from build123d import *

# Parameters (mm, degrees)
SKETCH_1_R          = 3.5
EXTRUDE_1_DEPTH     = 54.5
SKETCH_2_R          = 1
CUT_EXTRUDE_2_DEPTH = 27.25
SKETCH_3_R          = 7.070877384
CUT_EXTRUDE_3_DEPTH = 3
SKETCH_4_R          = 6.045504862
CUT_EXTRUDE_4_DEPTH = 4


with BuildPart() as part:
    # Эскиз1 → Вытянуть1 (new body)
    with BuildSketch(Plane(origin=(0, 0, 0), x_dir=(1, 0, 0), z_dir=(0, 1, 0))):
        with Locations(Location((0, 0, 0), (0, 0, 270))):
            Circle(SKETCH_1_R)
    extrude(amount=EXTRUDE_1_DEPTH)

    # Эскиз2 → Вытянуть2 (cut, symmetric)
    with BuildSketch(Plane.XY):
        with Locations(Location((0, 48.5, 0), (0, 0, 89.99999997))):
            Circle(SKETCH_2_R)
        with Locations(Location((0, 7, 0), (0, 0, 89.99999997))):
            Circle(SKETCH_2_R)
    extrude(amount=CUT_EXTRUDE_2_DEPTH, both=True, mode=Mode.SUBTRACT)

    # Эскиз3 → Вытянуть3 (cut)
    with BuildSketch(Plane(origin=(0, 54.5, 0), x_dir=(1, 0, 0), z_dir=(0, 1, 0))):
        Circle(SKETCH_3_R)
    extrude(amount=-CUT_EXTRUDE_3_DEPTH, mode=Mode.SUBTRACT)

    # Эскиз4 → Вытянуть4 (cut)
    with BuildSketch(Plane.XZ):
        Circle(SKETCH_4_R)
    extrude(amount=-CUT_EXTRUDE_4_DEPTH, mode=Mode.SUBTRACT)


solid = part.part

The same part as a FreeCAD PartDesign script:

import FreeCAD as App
import Part
import Sketcher

V = App.Vector

doc = App.newDocument("Part")
body = doc.addObject("PartDesign::Body", "Body")

# Sketch on XZ plane
sketch1 = body.newObject("Sketcher::SketchObject", "Sketch")
sketch1.AttachmentSupport = (doc.getObject("XZ_Plane"), [""])
sketch1.MapMode = "FlatFace"
sketch1.addGeometry(Part.Circle(V(0, 0, 0), V(0, 0, 1), 3.5), False)
sketch1.addConstraint(Sketcher.Constraint("Coincident", 0, 3, -1, 1))
sketch1.addConstraint(Sketcher.Constraint("Diameter", 0, 7.0))
pad1 = body.newObject("PartDesign::Pad", "Pad")
pad1.Profile = sketch1
pad1.Length = 54.5
pad1.Reversed = True

# Sketch on XY plane
sketch2 = body.newObject("Sketcher::SketchObject", "Sketch001")
sketch2.AttachmentSupport = (doc.getObject("XY_Plane"), [""])
sketch2.MapMode = "FlatFace"
sketch2.addGeometry(Part.Circle(V(0, 48.5, 0), V(0, 0, 1), 1), False)
sketch2.addGeometry(Part.Circle(V(0, 7, 0), V(0, 0, 1), 1), False)
sketch2.addConstraint(Sketcher.Constraint("Equal", 0, 1))
sketch2.addConstraint(Sketcher.Constraint("PointOnObject", 0, 3, -2))
sketch2.addConstraint(Sketcher.Constraint("PointOnObject", 1, 3, -2))
sketch2.addConstraint(Sketcher.Constraint("Diameter", 0, 2.0))
sketch2.addConstraint(Sketcher.Constraint("DistanceY", -1, 1, 1, 3, 7.0))
sketch2.addConstraint(Sketcher.Constraint("DistanceY", -1, 1, 0, 3, 48.5))
pocket1 = body.newObject("PartDesign::Pocket", "Pocket")
pocket1.Profile = sketch2
pocket1.Length = 54.5
pocket1.Midplane = True

# Sketch on XZ plane
sketch3 = body.newObject("Sketcher::SketchObject", "Sketch002")
sketch3.AttachmentSupport = (doc.getObject("XZ_Plane"), [""])
sketch3.MapMode = "FlatFace"
sketch3.AttachmentOffset = App.Placement(V(0, 0, -54.5), App.Rotation())
sketch3.addGeometry(Part.Circle(V(0, 0, 0), V(0, 0, 1), 7.070877), False)
sketch3.addConstraint(Sketcher.Constraint("Coincident", 0, 3, -1, 1))
sketch3.addConstraint(Sketcher.Constraint("Diameter", 0, 14.141755))
pocket2 = body.newObject("PartDesign::Pocket", "Pocket001")
pocket2.Profile = sketch3
pocket2.Length = 3
pocket2.Reversed = True

# Sketch on XZ plane
sketch4 = body.newObject("Sketcher::SketchObject", "Sketch003")
sketch4.AttachmentSupport = (doc.getObject("XZ_Plane"), [""])
sketch4.MapMode = "FlatFace"
sketch4.addGeometry(Part.Circle(V(0, 0, 0), V(0, 0, 1), 6.045505), False)
sketch4.addConstraint(Sketcher.Constraint("Coincident", 0, 3, -1, 1))
sketch4.addConstraint(Sketcher.Constraint("Diameter", 0, 12.09101))
pocket3 = body.newObject("PartDesign::Pocket", "Pocket002")
pocket3.Profile = sketch4
pocket3.Length = 4

doc.recompute()
